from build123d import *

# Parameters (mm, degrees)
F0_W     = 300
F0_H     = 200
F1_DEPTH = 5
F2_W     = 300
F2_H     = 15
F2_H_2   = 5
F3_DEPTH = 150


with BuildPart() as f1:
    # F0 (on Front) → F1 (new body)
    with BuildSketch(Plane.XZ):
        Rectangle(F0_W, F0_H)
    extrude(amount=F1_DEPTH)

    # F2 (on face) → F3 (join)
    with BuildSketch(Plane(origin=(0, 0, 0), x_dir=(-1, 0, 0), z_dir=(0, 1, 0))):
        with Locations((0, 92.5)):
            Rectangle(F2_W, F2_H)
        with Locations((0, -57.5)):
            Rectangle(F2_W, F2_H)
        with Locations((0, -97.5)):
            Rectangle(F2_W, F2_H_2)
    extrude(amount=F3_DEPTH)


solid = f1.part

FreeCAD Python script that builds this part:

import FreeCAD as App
import Part
import Sketcher

V = App.Vector


def add_polygon(sketch, points):
    """Adds a closed chain of lines whose ends are joined by coincident constraints."""
    first, n = sketch.GeometryCount, len(points)
    for a, b in zip(points, points[1:] + points[:1]):
        sketch.addGeometry(Part.LineSegment(App.Vector(*a, 0), App.Vector(*b, 0)), False)
    for i in range(n):
        sketch.addConstraint(Sketcher.Constraint("Coincident", first + i, 2, first + (i + 1) % n, 1))

doc = App.newDocument("Part")
body = doc.addObject("PartDesign::Body", "Body")

# Sketch on XZ plane
sketch1 = body.newObject("Sketcher::SketchObject", "Sketch")
sketch1.AttachmentSupport = (doc.getObject("XZ_Plane"), [""])
sketch1.MapMode = "FlatFace"
add_polygon(sketch1, [(-150, 100), (-150, -100), (150, -100), (150, 100)])  # lines 0-3
sketch1.addConstraint(Sketcher.Constraint("Vertical", 0))
sketch1.addConstraint(Sketcher.Constraint("Horizontal", 1))
sketch1.addConstraint(Sketcher.Constraint("Vertical", 2))
sketch1.addConstraint(Sketcher.Constraint("Horizontal", 3))
sketch1.addConstraint(Sketcher.Constraint("Symmetric", 0, 2, 2, 2, -1, 1))
sketch1.addConstraint(Sketcher.Constraint("DistanceX", 1, 1, 1, 2, 300.0))
sketch1.addConstraint(Sketcher.Constraint("DistanceY", 0, 2, 0, 1, 200.0))
pad1 = body.newObject("PartDesign::Pad", "Pad")
pad1.Profile = sketch1
pad1.Length = 5

# Sketch on XZ plane
sketch2 = body.newObject("Sketcher::SketchObject", "Sketch001")
sketch2.AttachmentSupport = (doc.getObject("XZ_Plane"), [""])
sketch2.MapMode = "FlatFace"
add_polygon(sketch2, [(150, 100), (150, 85), (-150, 85), (-150, 100)])  # lines 0-3
add_polygon(sketch2, [(150, -50), (150, -65), (-150, -65), (-150, -50)])  # lines 4-7
add_polygon(sketch2, [(150, -95), (150, -100), (-150, -100), (-150, -95)])  # lines 8-11
sketch2.addConstraint(Sketcher.Constraint("Vertical", 0))
sketch2.addConstraint(Sketcher.Constraint("Horizontal", 1))
sketch2.addConstraint(Sketcher.Constraint("Vertical", 2))
sketch2.addConstraint(Sketcher.Constraint("Horizontal", 3))
sketch2.addConstraint(Sketcher.Constraint("Vertical", 4))
sketch2.addConstraint(Sketcher.Constraint("Horizontal", 5))
sketch2.addConstraint(Sketcher.Constraint("Vertical", 6))
sketch2.addConstraint(Sketcher.Constraint("Horizontal", 7))
sketch2.addConstraint(Sketcher.Constraint("Vertical", 8))
sketch2.addConstraint(Sketcher.Constraint("Horizontal", 9))
sketch2.addConstraint(Sketcher.Constraint("Vertical", 10))
sketch2.addConstraint(Sketcher.Constraint("Horizontal", 11))
sketch2.addConstraint(Sketcher.Constraint("Symmetric", 2, 2, 8, 2, -1, 1))
sketch2.addConstraint(Sketcher.Constraint("Vertical", 3, 2, 4, 2))
sketch2.addConstraint(Sketcher.Constraint("Vertical", 2, 2, 5, 2))
sketch2.addConstraint(Sketcher.Constraint("Vertical", 7, 2, 8, 2))
sketch2.addConstraint(Sketcher.Constraint("Vertical", 6, 2, 9, 2))
sketch2.addConstraint(Sketcher.Constraint("Equal", 2, 4))
sketch2.addConstraint(Sketcher.Constraint("DistanceX", 1, 2, 1, 1, 300.0))
sketch2.addConstraint(Sketcher.Constraint("DistanceY", 0, 2, 0, 1, 15.0))
sketch2.addConstraint(Sketcher.Constraint("DistanceY", 8, 2, 8, 1, 5.0))
sketch2.addConstraint(Sketcher.Constraint("DistanceY", -1, 1, 0, 2, 85.0))
sketch2.addConstraint(Sketcher.Constraint("DistanceY", 4, 2, -1, 1, 65.0))
pad2 = body.newObject("PartDesign::Pad", "Pad001")
pad2.Profile = sketch2
pad2.Length = 150
pad2.Reversed = True

doc.recompute()
